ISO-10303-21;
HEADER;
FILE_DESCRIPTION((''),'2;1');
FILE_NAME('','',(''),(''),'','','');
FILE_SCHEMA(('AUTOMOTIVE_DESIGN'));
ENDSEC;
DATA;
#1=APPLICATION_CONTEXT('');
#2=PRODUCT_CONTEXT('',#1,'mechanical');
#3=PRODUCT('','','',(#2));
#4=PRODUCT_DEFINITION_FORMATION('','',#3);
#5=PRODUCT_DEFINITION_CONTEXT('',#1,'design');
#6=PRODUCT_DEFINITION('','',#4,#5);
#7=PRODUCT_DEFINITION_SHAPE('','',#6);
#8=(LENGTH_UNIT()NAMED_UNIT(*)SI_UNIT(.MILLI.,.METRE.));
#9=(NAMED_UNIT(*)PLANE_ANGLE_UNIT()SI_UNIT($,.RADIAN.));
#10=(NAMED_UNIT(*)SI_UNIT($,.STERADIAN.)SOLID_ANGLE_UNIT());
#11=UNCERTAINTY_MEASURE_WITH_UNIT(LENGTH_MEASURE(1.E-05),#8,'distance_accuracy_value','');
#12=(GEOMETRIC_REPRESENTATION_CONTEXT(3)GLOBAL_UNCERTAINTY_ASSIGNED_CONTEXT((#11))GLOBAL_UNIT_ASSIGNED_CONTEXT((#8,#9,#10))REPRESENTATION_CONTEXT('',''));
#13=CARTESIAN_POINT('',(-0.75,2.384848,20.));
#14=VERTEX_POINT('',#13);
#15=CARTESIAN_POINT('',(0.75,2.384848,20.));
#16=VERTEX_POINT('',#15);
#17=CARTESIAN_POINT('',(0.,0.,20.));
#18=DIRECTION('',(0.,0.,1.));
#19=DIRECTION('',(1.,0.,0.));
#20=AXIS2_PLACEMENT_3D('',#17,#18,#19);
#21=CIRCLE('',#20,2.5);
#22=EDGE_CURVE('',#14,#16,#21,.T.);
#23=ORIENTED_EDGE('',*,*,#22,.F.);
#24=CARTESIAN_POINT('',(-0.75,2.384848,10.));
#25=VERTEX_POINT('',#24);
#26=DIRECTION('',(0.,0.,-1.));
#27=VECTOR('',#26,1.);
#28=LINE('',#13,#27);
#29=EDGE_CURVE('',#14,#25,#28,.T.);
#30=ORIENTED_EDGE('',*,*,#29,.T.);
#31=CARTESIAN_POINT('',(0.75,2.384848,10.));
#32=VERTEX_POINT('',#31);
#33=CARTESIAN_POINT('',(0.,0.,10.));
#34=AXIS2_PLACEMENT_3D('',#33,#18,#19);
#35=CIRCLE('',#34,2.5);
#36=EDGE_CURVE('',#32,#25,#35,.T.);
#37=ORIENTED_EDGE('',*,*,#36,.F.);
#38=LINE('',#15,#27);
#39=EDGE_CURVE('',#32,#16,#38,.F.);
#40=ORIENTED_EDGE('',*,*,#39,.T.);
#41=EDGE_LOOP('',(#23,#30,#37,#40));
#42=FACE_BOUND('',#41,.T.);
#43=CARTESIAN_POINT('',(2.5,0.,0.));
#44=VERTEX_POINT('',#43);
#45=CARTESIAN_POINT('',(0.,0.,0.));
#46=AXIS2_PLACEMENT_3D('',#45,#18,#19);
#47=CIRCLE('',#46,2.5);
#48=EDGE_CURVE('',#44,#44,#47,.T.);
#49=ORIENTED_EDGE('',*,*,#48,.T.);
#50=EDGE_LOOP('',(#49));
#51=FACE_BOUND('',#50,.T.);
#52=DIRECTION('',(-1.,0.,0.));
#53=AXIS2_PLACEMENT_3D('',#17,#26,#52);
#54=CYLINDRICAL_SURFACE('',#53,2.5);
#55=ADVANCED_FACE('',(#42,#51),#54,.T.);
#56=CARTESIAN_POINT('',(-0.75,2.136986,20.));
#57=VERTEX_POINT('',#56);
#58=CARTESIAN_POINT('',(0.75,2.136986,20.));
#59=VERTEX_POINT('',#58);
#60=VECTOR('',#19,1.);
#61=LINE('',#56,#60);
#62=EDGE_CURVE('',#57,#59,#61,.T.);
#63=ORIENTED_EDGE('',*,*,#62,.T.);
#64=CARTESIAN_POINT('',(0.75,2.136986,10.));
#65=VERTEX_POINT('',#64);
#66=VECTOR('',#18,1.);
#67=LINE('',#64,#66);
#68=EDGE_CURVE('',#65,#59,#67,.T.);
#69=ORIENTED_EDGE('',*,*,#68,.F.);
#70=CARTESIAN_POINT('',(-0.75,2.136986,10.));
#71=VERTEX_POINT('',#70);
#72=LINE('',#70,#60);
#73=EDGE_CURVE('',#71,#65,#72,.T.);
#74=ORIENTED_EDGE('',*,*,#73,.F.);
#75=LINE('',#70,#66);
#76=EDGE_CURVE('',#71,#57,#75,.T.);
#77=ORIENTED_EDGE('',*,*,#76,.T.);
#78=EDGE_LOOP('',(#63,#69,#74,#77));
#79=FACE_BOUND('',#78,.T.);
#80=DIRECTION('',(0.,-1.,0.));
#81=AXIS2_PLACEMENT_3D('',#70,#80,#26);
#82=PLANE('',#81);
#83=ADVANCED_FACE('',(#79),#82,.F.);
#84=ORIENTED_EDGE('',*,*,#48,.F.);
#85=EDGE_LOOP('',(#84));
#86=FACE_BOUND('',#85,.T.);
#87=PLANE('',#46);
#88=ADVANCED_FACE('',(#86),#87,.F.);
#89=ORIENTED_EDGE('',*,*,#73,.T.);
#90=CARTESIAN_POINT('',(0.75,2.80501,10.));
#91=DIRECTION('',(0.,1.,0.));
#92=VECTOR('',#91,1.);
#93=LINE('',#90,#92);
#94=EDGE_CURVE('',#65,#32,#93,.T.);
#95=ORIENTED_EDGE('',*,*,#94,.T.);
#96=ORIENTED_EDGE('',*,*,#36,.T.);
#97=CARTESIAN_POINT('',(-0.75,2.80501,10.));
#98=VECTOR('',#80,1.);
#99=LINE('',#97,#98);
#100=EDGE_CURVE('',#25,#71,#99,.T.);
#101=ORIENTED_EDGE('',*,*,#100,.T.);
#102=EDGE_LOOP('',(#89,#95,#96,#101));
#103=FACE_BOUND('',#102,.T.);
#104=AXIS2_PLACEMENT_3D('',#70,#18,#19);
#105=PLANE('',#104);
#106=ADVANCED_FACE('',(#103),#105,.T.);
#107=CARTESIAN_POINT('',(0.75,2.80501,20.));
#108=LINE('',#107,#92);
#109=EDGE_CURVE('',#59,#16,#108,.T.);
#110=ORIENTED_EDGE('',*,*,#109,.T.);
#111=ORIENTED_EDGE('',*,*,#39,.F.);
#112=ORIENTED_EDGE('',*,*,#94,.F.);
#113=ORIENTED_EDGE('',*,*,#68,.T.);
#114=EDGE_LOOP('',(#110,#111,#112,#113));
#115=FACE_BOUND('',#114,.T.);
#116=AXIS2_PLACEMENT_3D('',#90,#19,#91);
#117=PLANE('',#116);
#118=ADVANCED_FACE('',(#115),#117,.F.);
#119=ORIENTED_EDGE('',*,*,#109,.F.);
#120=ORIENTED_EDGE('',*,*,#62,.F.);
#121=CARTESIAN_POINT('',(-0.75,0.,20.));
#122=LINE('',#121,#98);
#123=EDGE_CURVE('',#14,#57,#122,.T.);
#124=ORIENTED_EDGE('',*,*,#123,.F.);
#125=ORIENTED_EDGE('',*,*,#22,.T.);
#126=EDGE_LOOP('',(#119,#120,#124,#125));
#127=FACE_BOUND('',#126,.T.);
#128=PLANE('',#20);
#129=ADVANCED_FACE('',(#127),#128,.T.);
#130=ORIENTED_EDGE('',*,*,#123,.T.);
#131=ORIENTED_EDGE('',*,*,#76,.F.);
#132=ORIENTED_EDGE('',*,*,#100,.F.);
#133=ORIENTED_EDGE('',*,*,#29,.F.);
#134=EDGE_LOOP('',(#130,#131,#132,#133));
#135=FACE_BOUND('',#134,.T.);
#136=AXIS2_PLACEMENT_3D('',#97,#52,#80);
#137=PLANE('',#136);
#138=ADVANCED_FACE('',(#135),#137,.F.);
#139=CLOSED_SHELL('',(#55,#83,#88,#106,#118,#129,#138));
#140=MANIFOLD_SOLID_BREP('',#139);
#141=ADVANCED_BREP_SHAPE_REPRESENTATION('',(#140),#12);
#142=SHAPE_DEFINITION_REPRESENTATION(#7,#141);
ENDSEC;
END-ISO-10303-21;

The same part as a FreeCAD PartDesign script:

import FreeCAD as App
import Part
import Sketcher

V = App.Vector
Q = App.Units.Quantity

doc = App.newDocument("Part")
body = doc.addObject("PartDesign::Body", "Body")

sketch1 = body.newObject("Sketcher::SketchObject", "Sketch")
sketch1.AttachmentSupport = (doc.getObject("XY_Plane"), [""])
sketch1.MapMode = "FlatFace"
sketch1.addGeometry(Part.Circle(V(0, 0, 0), V(0, 0, 1), 2.5), False)
sketch1.addConstraint([
    Sketcher.Constraint("Coincident", 0, 3, -1, 1),
    Sketcher.Constraint("Diameter", 0, Q("5 mm")),
])
pad1 = body.newObject("PartDesign::Pad", "Pad")
pad1.Profile = sketch1
pad1.Length = 20

sketch2 = body.newObject("Sketcher::SketchObject", "Sketch001")
sketch2.AttachmentSupport = (doc.getObject("XY_Plane"), [""])
sketch2.MapMode = "FlatFace"
sketch2.AttachmentOffset = App.Placement(V(0, 0, 20), App.Rotation())
sketch2.addGeometry([
    Part.LineSegment(V(-0.8, 2.8, 0), V(-0.8, 2.1, 0)),
    Part.LineSegment(V(-0.8, 2.1, 0), V(0.8, 2.1, 0)),
    Part.LineSegment(V(0.8, 2.1, 0), V(0.8, 2.8, 0)),
    Part.LineSegment(V(0.8, 2.8, 0), V(-0.8, 2.8, 0)),
], False)
sketch2.addConstraint([
    Sketcher.Constraint("Coincident", 0, 2, 1, 1),
    Sketcher.Constraint("Coincident", 1, 2, 2, 1),
    Sketcher.Constraint("Coincident", 2, 2, 3, 1),
    Sketcher.Constraint("Coincident", 3, 2, 0, 1),
    Sketcher.Constraint("Vertical", 0),
    Sketcher.Constraint("Horizontal", 1),
    Sketcher.Constraint("Vertical", 2),
    Sketcher.Constraint("Horizontal", 3),
    Sketcher.Constraint("DistanceX", 1, 1, 1, 2, Q("1.5 mm")),
    Sketcher.Constraint("DistanceX", 0, 2, -1, 1, Q("0.75 mm")),
    Sketcher.Constraint("DistanceY", 0, 2, 0, 1, Q("0.668024 mm")),
    Sketcher.Constraint("DistanceY", -1, 1, 2, 2, Q("2.80501 mm")),
])
pocket1 = body.newObject("PartDesign::Pocket", "Pocket")
pocket1.Profile = sketch2
pocket1.Length = 10

doc.recompute()
